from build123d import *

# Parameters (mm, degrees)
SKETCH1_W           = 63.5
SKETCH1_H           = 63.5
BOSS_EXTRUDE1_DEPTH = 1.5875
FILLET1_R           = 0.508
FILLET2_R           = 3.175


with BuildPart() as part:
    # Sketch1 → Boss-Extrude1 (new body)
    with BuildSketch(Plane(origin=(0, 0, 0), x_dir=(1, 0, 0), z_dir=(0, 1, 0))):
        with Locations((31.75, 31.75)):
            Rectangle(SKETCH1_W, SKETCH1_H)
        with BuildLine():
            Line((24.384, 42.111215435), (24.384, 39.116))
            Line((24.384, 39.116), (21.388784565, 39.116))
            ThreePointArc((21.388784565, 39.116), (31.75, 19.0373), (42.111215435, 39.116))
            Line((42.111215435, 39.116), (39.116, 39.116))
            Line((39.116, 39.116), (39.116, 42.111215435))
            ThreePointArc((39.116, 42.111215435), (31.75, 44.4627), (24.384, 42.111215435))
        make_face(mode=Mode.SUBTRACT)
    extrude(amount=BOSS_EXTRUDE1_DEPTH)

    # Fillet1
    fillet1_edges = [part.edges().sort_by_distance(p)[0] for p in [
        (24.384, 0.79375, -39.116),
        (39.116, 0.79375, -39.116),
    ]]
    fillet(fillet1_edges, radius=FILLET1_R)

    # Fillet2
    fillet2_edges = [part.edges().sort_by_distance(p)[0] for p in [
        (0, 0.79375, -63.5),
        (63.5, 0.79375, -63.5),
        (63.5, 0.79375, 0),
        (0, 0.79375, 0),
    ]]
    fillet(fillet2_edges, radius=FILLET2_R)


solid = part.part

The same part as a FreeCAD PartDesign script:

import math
import FreeCAD as App
import Part
import Sketcher
from FreeCAD import Vector
Q = App.Units.Quantity


def edges_at(feature, points):
    """Names of the edges that pass closest to the given points."""
    edges = feature.Shape.Edges
    near = lambda p: min(range(len(edges)), key=lambda i: edges[i].distToShape(Part.Vertex(*p))[0])
    return sorted({f"Edge{near(p) + 1}" for p in points})


def add_polygon(sketch, points):
    """Adds a closed chain of lines whose ends are joined by coincident constraints."""
    first, n = sketch.GeometryCount, len(points)
    for a, b in zip(points, points[1:] + points[:1]):
        sketch.addGeometry(Part.LineSegment(App.Vector(*a, 0), App.Vector(*b, 0)), False)
    for i in range(n):
        sketch.addConstraint(Sketcher.Constraint("Coincident", first + i, 2, first + (i + 1) % n, 1))

doc = App.newDocument("Part")
body = doc.addObject("PartDesign::Body", "Body")

# Sketch on XZ plane
sketch1 = doc.addObject("Sketcher::SketchObject", "Sketch")
body.addObject(sketch1)
sketch1.AttachmentSupport = (doc.XZ_Plane, [""])
sketch1.MapMode = "FlatFace"
add_polygon(sketch1, [(0, -63.5), (0, 0), (63.5, 0), (63.5, -63.5)])  # lines 0-3
sketch1.addGeometry(Part.LineSegment(Vector(24.384, -39.116, 0), Vector(24.384, -42.111215, 0)), False)  # 4
sketch1.addGeometry(Part.ArcOfCircle(Part.Circle(Vector(31.75, -31.75, 0), Vector(0, 0, 1), 12.7127), math.radians(-125.4098), math.radians(-54.5902)), False)  # 5
sketch1.addGeometry(Part.LineSegment(Vector(39.116, -42.111215, 0), Vector(39.116, -39.116, 0)), False)  # 6
sketch1.addGeometry(Part.LineSegment(Vector(39.116, -39.116, 0), Vector(42.111215, -39.116, 0)), False)  # 7
sketch1.addGeometry(Part.ArcOfCircle(Part.Circle(Vector(31.75, -31.75, 0), Vector(0, 0, 1), 12.7127), math.radians(-35.4098), math.radians(215.4098)), False)  # 8
sketch1.addGeometry(Part.LineSegment(Vector(21.388785, -39.116, 0), Vector(24.384, -39.116, 0)), False)  # 9
sketch1.addConstraint(Sketcher.Constraint("Coincident", 4, 2, 5, 1))
sketch1.addConstraint(Sketcher.Constraint("Coincident", 5, 2, 6, 1))
sketch1.addConstraint(Sketcher.Constraint("Coincident", 6, 2, 7, 1))
sketch1.addConstraint(Sketcher.Constraint("Coincident", 7, 2, 8, 1))
sketch1.addConstraint(Sketcher.Constraint("Coincident", 8, 2, 9, 1))
sketch1.addConstraint(Sketcher.Constraint("Coincident", 9, 2, 4, 1))
sketch1.addConstraint(Sketcher.Constraint("Vertical", 0))
sketch1.addConstraint(Sketcher.Constraint("Horizontal", 1))
sketch1.addConstraint(Sketcher.Constraint("Vertical", 2))
sketch1.addConstraint(Sketcher.Constraint("Horizontal", 3))
sketch1.addConstraint(Sketcher.Constraint("Vertical", 4))
sketch1.addConstraint(Sketcher.Constraint("Vertical", 6))
sketch1.addConstraint(Sketcher.Constraint("Horizontal", 7))
sketch1.addConstraint(Sketcher.Constraint("Horizontal", 9))
sketch1.addConstraint(Sketcher.Constraint("Coincident", 0, 2, -1, 1))
sketch1.addConstraint(Sketcher.Constraint("Coincident", 8, 3, 5, 3))
sketch1.addConstraint(Sketcher.Constraint("Equal", 5, 8))
sketch1.addConstraint(Sketcher.Constraint("Horizontal", 4, 2, 5, 2))
sketch1.addConstraint(Sketcher.Constraint("Horizontal", 7, 2, 8, 2))
sketch1.addConstraint(Sketcher.Constraint("Equal", 3, 0))
sketch1.addConstraint(Sketcher.Constraint("Equal", 9, 4))
sketch1.addConstraint(Sketcher.Constraint("DistanceX", 1, 1, 1, 2, Q("2.5 in")))
sketch1.addConstraint(Sketcher.Constraint("Radius", 5, Q("0.5005 in")))
sketch1.addConstraint(Sketcher.Constraint("DistanceX", -1, 1, 5, 3, Q("1.25 in")))
sketch1.addConstraint(Sketcher.Constraint("DistanceY", 5, 3, -1, 1, Q("1.25 in")))
sketch1.addConstraint(Sketcher.Constraint("DistanceX", -1, 1, 4, 2, Q("0.96 in")))
pad1 = doc.addObject("PartDesign::Pad", "Pad")
body.addObject(pad1)
pad1.Profile = sketch1
pad1.Length = Q("0.0625 in")
pad1.Reversed = True
doc.recompute()

fillet = doc.addObject("PartDesign::Fillet", "Fillet")
body.addObject(fillet)
fillet.Base = (pad1, edges_at(pad1, [(24.384, 0.794, -39.116), (39.116, 0.794, -39.116)]))
fillet.Radius = Q("0.02 in")
doc.recompute()

fillet2 = doc.addObject("PartDesign::Fillet", "Fillet001")
body.addObject(fillet2)
fillet2.Base = (fillet, edges_at(fillet, [
    (0, 0.794, -63.5),
    (63.5, 0.794, -63.5),
    (63.5, 0.794, 0),
    (0, 0.794, 0),
]))
fillet2.Radius = Q("0.125 in")

doc.recompute()
